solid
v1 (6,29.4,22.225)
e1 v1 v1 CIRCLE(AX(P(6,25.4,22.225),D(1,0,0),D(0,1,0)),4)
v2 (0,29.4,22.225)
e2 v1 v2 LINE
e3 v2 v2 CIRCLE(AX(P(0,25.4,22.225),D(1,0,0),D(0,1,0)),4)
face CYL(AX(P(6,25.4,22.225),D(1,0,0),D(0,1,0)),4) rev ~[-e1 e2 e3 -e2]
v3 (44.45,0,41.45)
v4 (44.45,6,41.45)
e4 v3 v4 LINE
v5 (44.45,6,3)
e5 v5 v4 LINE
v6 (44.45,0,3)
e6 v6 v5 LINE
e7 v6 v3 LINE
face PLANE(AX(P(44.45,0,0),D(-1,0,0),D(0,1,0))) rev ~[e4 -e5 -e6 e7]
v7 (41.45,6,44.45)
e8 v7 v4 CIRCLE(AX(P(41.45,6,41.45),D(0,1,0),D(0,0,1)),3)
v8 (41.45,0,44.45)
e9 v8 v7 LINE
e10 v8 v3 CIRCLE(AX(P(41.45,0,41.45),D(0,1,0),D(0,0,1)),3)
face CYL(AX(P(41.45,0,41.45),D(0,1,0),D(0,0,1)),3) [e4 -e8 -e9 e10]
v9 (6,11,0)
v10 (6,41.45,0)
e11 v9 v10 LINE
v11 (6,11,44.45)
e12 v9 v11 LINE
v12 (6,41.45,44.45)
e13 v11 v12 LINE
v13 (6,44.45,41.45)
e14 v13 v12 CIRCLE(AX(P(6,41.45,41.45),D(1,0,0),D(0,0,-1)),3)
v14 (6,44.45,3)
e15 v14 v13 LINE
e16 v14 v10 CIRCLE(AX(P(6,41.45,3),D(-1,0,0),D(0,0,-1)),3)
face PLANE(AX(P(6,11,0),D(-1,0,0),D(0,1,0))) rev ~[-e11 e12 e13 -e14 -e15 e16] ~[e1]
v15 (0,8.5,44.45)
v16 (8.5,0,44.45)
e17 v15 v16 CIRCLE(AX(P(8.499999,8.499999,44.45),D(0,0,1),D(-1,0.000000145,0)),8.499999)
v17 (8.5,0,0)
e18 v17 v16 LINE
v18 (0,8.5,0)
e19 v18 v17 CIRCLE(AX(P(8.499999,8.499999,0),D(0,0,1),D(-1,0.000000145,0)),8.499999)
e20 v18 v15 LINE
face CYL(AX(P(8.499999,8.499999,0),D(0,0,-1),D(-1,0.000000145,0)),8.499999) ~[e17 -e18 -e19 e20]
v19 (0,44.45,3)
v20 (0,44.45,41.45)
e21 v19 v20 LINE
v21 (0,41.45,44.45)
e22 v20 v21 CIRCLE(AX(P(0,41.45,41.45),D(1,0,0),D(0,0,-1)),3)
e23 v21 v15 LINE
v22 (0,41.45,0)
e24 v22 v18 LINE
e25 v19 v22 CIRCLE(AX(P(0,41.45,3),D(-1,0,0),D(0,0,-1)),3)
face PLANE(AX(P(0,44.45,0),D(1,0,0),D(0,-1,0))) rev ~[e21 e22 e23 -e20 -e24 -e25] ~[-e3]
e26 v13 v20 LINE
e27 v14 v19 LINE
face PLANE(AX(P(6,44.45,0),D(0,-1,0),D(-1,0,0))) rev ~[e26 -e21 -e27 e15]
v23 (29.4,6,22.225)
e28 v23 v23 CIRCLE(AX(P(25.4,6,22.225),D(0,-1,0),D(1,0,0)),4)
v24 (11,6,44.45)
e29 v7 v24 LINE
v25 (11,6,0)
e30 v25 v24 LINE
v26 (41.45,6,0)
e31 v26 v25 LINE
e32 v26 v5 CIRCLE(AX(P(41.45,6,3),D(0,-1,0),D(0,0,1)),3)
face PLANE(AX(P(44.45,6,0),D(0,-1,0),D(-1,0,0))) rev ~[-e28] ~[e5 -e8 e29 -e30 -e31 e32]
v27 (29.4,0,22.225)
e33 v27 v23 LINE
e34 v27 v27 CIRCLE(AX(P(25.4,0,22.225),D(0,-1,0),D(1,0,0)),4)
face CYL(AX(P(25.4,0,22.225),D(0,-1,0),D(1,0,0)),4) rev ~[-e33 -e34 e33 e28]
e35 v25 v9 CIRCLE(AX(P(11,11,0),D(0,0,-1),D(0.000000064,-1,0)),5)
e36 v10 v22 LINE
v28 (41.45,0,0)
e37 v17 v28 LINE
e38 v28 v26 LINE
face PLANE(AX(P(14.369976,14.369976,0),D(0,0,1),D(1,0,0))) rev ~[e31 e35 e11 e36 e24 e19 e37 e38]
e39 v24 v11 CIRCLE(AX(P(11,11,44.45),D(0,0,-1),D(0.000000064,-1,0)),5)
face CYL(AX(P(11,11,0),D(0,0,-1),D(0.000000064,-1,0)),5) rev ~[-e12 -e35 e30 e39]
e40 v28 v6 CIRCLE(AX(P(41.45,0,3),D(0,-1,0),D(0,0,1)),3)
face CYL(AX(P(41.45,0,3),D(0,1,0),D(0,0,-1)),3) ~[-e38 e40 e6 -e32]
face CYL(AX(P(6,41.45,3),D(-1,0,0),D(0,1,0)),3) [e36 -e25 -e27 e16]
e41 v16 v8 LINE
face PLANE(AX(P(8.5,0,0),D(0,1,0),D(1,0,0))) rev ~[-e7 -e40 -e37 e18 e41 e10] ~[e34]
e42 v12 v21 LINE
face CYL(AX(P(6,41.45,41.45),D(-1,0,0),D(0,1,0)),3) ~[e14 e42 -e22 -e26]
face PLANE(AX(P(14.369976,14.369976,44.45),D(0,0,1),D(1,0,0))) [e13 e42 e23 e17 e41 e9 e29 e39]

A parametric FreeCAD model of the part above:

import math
import FreeCAD as App
import Part
import Sketcher
from FreeCAD import Vector


def edges_at(feature, points):
    """Names of the edges that pass closest to the given points."""
    edges = feature.Shape.Edges
    near = lambda p: min(range(len(edges)), key=lambda i: edges[i].distToShape(Part.Vertex(*p))[0])
    return sorted({f"Edge{near(p) + 1}" for p in points})

doc = App.newDocument("Part")
body = doc.addObject("PartDesign::Body", "Body")

# Sketch on XY plane
sketch1 = doc.addObject("Sketcher::SketchObject", "Sketch")
body.addObject(sketch1)
sketch1.AttachmentSupport = (doc.XY_Plane, [""])
sketch1.MapMode = "FlatFace"
sketch1.addGeometry([
    Part.LineSegment(Vector(6, 44.5, 0), Vector(0, 44.5, 0)),  # 0
    Part.LineSegment(Vector(0, 44.5, 0), Vector(0, 8.5, 0)),  # 1
    Part.ArcOfCircle(Part.Circle(Vector(8.5, 8.5, 0), Vector(0, 0, 1), 8.5), math.radians(180), math.radians(270)),  # 2
    Part.LineSegment(Vector(8.5, 0, 0), Vector(44.5, 0, 0)),  # 3
    Part.LineSegment(Vector(44.5, 0, 0), Vector(44.5, 6, 0)),  # 4
    Part.LineSegment(Vector(44.5, 6, 0), Vector(11, 6, 0)),  # 5
    Part.ArcOfCircle(Part.Circle(Vector(11, 11, 0), Vector(0, 0, 1), 5), math.radians(180), math.radians(270)),  # 6
    Part.LineSegment(Vector(6, 11, 0), Vector(6, 44.5, 0)),  # 7
], False)
sketch1.addConstraint([
    Sketcher.Constraint("Coincident", 0, 2, 1, 1),
    Sketcher.Constraint("Tangent", 1, 2, 2, 1),
    Sketcher.Constraint("Tangent", 2, 2, 3, 1),
    Sketcher.Constraint("Coincident", 3, 2, 4, 1),
    Sketcher.Constraint("Coincident", 4, 2, 5, 1),
    Sketcher.Constraint("Tangent", 5, 2, 6, 2),
    Sketcher.Constraint("Tangent", 6, 1, 7, 1),
    Sketcher.Constraint("Coincident", 7, 2, 0, 1),
    Sketcher.Constraint("Horizontal", 0),
    Sketcher.Constraint("Vertical", 1),
    Sketcher.Constraint("Horizontal", 3),
    Sketcher.Constraint("Vertical", 4),
    Sketcher.Constraint("Horizontal", 5),
    Sketcher.Constraint("Vertical", 7),
    Sketcher.Constraint("PointOnObject", 0, 2, -2),
    Sketcher.Constraint("PointOnObject", 2, 2, -1),
    Sketcher.Constraint("Equal", 3, 1),
    Sketcher.Constraint("Equal", 0, 4),
    Sketcher.Constraint("Radius", 6, 5.0),
    Sketcher.Constraint("Radius", 2, 8.499999),
    Sketcher.Constraint("DistanceX", 0, 2, 0, 1, 6.0),
    Sketcher.Constraint("DistanceX", 3, 1, 3, 2, 35.95),
])
pad1 = doc.addObject("PartDesign::Pad", "Pad")
body.addObject(pad1)
pad1.Profile = sketch1
pad1.Length = 44.45

# Sketch on YZ plane
sketch2 = doc.addObject("Sketcher::SketchObject", "Sketch001")
body.addObject(sketch2)
sketch2.AttachmentSupport = (doc.YZ_Plane, [""])
sketch2.MapMode = "FlatFace"
sketch2.AttachmentOffset = App.Placement(Vector(0, 0, 6), App.Rotation())
sketch2.addGeometry(Part.Circle(Vector(25.4, 22.2, 0), Vector(0, 0, 1), 4), False)
sketch2.addConstraint([
    Sketcher.Constraint("Diameter", 0, 8.0),
    Sketcher.Constraint("DistanceX", -1, 1, 0, 3, 25.4),
    Sketcher.Constraint("DistanceY", -1, 1, 0, 3, 22.225),
])
pocket1 = doc.addObject("PartDesign::Pocket", "Pocket")
body.addObject(pocket1)
pocket1.Profile = sketch2
pocket1.Type = "ThroughAll"

# Sketch on XZ plane
sketch3 = doc.addObject("Sketcher::SketchObject", "Sketch002")
body.addObject(sketch3)
sketch3.AttachmentSupport = (doc.XZ_Plane, [""])
sketch3.MapMode = "FlatFace"
sketch3.addGeometry(Part.Circle(Vector(25.4, 22.2, 0), Vector(0, 0, 1), 4), False)
sketch3.addConstraint([
    Sketcher.Constraint("Diameter", 0, 8.0),
    Sketcher.Constraint("DistanceX", -1, 1, 0, 3, 25.4),
    Sketcher.Constraint("DistanceY", -1, 1, 0, 3, 22.225),
])
pocket2 = doc.addObject("PartDesign::Pocket", "Pocket001")
body.addObject(pocket2)
pocket2.Profile = sketch3
pocket2.Type = "ThroughAll"
doc.recompute()

fillet = doc.addObject("PartDesign::Fillet", "Fillet")
body.addObject(fillet)
fillet.Base = (pocket2, edges_at(pocket2, [
    (44.45, 3, 44.45),
    (44.45, 3, 0),
    (3, 44.45, 0),
    (3, 44.45, 44.45),
]))
fillet.Radius = 3

doc.recompute()
